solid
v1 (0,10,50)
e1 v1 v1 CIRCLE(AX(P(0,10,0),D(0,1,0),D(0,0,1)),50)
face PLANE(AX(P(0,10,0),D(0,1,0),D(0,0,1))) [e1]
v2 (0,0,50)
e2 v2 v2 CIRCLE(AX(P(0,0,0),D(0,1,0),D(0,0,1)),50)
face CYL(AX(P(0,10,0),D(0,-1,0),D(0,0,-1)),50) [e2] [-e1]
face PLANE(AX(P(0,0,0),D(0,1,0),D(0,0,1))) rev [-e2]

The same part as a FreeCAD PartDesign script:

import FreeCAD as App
import Part
import Sketcher
from FreeCAD import Vector

doc = App.newDocument("Part")
params = doc.addObject("Spreadsheet::Sheet", "Params")
for row, (alias, value) in enumerate([
    ("sketch1_diameter", "100 mm"),
    ("pad1_length", "10 mm"),
], start=1):
    params.set(f"A{row}", alias)
    params.set(f"B{row}", "=" + value)
    params.setAlias(f"B{row}", alias)

body = doc.addObject("PartDesign::Body", "Body")

# Sketch on XZ plane
sketch1 = body.newObject("Sketcher::SketchObject", "Sketch")
sketch1.AttachmentSupport = (doc.getObject("XZ_Plane"), [""])
sketch1.MapMode = "FlatFace"
sketch1.addGeometry(Part.Circle(Vector(0, 0, 0), Vector(0, 0, 1), 50), False)
sketch1.addConstraint([
    Sketcher.Constraint("Coincident", 0, 3, -1, 1),
    Sketcher.Constraint("Diameter", 0, 100.0),
])
sketch1.setExpression("Constraints[1]", "Params.sketch1_diameter")
pad1 = body.newObject("PartDesign::Pad", "Pad")
pad1.Profile = sketch1
pad1.setExpression("Length", "Params.pad1_length")
pad1.Reversed = True

doc.recompute()
